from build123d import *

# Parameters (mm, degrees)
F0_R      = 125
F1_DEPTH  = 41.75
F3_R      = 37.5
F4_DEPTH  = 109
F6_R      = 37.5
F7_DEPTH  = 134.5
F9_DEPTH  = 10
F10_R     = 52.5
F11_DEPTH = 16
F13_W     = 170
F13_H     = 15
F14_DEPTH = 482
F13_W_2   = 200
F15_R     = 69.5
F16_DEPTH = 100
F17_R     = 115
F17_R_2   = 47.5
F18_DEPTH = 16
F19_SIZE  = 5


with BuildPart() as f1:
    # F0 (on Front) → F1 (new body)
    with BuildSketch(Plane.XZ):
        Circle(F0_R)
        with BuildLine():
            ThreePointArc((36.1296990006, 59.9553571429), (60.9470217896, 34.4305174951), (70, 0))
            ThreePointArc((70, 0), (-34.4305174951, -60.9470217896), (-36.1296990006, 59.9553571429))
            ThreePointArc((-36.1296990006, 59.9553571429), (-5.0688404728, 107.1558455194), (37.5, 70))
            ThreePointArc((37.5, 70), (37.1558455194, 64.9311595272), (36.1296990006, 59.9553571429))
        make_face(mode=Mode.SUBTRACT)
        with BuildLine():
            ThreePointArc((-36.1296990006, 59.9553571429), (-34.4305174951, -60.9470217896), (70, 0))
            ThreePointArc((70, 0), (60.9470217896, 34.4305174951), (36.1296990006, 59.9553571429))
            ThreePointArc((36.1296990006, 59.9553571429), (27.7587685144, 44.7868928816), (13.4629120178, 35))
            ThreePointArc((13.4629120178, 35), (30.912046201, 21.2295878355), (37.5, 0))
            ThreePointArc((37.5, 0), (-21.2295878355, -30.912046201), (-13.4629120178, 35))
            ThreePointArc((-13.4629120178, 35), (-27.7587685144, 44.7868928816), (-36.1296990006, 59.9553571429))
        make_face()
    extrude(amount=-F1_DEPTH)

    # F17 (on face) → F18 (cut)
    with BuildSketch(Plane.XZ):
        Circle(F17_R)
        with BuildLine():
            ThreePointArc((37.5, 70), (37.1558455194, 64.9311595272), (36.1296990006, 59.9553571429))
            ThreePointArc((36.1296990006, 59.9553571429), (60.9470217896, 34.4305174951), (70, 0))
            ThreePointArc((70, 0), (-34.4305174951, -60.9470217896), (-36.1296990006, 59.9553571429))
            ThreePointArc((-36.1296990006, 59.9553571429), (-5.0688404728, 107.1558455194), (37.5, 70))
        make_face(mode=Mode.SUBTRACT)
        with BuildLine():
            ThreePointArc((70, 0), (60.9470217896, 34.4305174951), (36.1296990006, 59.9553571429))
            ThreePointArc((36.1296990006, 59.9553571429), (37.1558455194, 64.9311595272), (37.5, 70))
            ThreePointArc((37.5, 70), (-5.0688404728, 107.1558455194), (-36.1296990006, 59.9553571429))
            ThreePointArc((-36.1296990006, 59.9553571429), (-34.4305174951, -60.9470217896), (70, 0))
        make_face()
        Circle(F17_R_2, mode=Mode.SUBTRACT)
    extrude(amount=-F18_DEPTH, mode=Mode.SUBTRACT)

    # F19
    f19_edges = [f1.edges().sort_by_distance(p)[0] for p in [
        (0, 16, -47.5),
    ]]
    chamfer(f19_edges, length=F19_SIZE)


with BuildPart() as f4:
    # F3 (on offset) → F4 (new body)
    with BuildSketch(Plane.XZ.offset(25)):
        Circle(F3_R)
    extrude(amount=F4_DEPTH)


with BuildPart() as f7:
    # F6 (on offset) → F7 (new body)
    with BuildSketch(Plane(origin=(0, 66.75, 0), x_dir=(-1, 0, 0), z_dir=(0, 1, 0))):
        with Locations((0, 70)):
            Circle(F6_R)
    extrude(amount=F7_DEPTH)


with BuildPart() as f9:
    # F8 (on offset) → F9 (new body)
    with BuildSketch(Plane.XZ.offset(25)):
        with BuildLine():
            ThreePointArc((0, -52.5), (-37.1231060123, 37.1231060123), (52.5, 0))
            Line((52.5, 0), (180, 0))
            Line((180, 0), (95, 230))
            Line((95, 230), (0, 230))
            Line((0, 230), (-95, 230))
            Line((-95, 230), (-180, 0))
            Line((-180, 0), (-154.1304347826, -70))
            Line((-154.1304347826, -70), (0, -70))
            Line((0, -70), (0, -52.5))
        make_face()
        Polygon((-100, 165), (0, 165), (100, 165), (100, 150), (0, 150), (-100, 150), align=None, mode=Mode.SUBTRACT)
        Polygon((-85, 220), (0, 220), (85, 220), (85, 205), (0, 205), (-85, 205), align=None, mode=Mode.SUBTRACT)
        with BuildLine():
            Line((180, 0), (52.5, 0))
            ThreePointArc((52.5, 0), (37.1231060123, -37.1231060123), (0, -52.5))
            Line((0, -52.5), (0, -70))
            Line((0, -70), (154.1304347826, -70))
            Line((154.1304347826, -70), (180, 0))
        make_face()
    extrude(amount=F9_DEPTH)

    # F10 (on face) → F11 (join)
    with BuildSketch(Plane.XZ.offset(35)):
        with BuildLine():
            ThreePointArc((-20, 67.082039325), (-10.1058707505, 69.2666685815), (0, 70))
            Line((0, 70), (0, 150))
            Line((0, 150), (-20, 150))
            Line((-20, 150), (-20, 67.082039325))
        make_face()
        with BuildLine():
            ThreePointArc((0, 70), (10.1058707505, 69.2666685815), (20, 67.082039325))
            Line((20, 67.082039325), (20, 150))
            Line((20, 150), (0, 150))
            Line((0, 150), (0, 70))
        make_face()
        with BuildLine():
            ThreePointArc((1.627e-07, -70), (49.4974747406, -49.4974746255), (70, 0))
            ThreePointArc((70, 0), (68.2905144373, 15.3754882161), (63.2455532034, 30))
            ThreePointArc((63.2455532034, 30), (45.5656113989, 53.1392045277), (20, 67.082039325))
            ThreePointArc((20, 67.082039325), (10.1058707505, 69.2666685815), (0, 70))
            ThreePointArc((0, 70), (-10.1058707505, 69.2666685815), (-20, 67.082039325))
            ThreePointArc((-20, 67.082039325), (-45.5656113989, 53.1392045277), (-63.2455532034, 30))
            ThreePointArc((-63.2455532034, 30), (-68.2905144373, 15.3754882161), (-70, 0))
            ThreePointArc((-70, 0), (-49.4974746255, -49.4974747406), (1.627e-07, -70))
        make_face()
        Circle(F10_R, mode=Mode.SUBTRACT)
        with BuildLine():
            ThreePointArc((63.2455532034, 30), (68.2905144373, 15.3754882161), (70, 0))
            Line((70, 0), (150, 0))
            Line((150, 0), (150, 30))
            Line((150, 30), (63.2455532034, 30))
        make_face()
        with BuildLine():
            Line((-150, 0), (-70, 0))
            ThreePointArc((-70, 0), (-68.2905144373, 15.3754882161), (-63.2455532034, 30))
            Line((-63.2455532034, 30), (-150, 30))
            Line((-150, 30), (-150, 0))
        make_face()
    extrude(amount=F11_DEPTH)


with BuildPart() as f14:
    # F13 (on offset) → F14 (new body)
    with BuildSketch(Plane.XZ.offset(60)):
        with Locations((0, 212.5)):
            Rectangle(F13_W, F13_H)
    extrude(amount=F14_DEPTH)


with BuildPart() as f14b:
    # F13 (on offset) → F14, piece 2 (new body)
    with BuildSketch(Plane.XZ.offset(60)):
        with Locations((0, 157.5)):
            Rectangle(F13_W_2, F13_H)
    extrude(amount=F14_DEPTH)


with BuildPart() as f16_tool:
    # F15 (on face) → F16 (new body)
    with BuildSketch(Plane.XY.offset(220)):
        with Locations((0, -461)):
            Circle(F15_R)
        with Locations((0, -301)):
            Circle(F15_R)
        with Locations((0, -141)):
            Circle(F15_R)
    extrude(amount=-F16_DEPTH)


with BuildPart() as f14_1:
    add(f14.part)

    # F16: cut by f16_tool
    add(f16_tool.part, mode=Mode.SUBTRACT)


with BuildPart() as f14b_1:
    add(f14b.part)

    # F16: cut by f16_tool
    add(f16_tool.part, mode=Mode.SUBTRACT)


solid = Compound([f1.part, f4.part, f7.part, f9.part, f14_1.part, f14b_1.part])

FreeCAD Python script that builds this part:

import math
import FreeCAD as App
import Part
import Sketcher


def edges_at(feature, points):
    """Names of the edges that pass closest to the given points."""
    edges = feature.Shape.Edges
    near = lambda p: min(range(len(edges)), key=lambda i: edges[i].distToShape(Part.Vertex(*p))[0])
    return sorted({f"Edge{near(p) + 1}" for p in points})

doc = App.newDocument("Part")
body = doc.addObject("PartDesign::Body", "Body")

sketch1 = body.newObject("Sketcher::SketchObject", "Sketch")
sketch1.AttachmentSupport = (doc.getObject("XZ_Plane"), [""])
sketch1.MapMode = "FlatFace"
sketch1.addGeometry([
    Part.Circle(App.Vector(0, 0, 0), App.Vector(0, 0, 1), 125),
    Part.ArcOfCircle(Part.Circle(App.Vector(0, 0, 0), App.Vector(0, 0, 1), 37.5), math.radians(0), math.radians(68.96053)),
    Part.ArcOfCircle(Part.Circle(App.Vector(0, 0, 0), App.Vector(0, 0, 1), 37.5), math.radians(111.03947), math.radians(360)),
    Part.ArcOfCircle(Part.Circle(App.Vector(0, 70, 0), App.Vector(0, 0, 1), 37.5), math.radians(-68.96053), math.radians(248.96053)),
], False)
sketch1.addConstraint([
    Sketcher.Constraint("Tangent", 1, 1, 2, 2),
    Sketcher.Constraint("Coincident", 2, 1, 3, 2),
    Sketcher.Constraint("Coincident", 3, 1, 1, 2),
    Sketcher.Constraint("Coincident", 0, 3, -1, 1),
    Sketcher.Constraint("Coincident", 1, 3, -1, 1),
    Sketcher.Constraint("Equal", 1, 2),
    Sketcher.Constraint("Equal", 2, 3),
    Sketcher.Constraint("PointOnObject", 3, 3, -2),
    Sketcher.Constraint("PointOnObject", 1, 1, -1),
    Sketcher.Constraint("Diameter", 0, 250.0),
    Sketcher.Constraint("Radius", 1, 37.5),
    Sketcher.Constraint("DistanceY", -1, 1, 3, 3, 70.0),
])
pad1 = body.newObject("PartDesign::Pad", "Pad")
pad1.Profile = sketch1
pad1.Length = 41.75
pad1.Reversed = True

sketch2 = body.newObject("Sketcher::SketchObject", "Sketch001")
sketch2.AttachmentSupport = (doc.getObject("XZ_Plane"), [""])
sketch2.MapMode = "FlatFace"
sketch2.addGeometry([
    Part.Circle(App.Vector(0, 0, 0), App.Vector(0, 0, 1), 115),
    Part.Circle(App.Vector(0, 0, 0), App.Vector(0, 0, 1), 47.5),
], False)
sketch2.addConstraint([
    Sketcher.Constraint("Coincident", 0, 3, -1, 1),
    Sketcher.Constraint("Coincident", 1, 3, -1, 1),
    Sketcher.Constraint("Diameter", 0, 230.0),
    Sketcher.Constraint("Diameter", 1, 95.0),
])
pocket1 = body.newObject("PartDesign::Pocket", "Pocket")
pocket1.Profile = sketch2
pocket1.Length = 16
doc.recompute()

chamfer = body.newObject("PartDesign::Chamfer", "Chamfer")
chamfer.Base = (pocket1, edges_at(pocket1, [(0, 16, -47.5)]))
chamfer.Size = 5
body2 = doc.addObject("PartDesign::Body", "Body001")

sketch3 = body2.newObject("Sketcher::SketchObject", "Sketch002")
sketch3.AttachmentSupport = (doc.getObject("XZ_Plane001"), [""])
sketch3.MapMode = "FlatFace"
sketch3.AttachmentOffset = App.Placement(App.Vector(0, 0, 25), App.Rotation())
sketch3.addGeometry(Part.Circle(App.Vector(0, 0, 0), App.Vector(0, 0, 1), 37.5), False)
sketch3.addConstraint([
    Sketcher.Constraint("Coincident", 0, 3, -1, 1),
    Sketcher.Constraint("Diameter", 0, 75.0),
])
pad2 = body2.newObject("PartDesign::Pad", "Pad001")
pad2.Profile = sketch3
pad2.Length = 109
body3 = doc.addObject("PartDesign::Body", "Body002")

sketch4 = body3.newObject("Sketcher::SketchObject", "Sketch003")
sketch4.AttachmentSupport = (doc.getObject("XZ_Plane002"), [""])
sketch4.MapMode = "FlatFace"
sketch4.AttachmentOffset = App.Placement(App.Vector(0, 0, -66.75), App.Rotation())
sketch4.addGeometry(Part.Circle(App.Vector(0, 70, 0), App.Vector(0, 0, 1), 37.5), False)
sketch4.addConstraint([
    Sketcher.Constraint("PointOnObject", 0, 3, -2),
    Sketcher.Constraint("Diameter", 0, 75.0),
    Sketcher.Constraint("DistanceY", -1, 1, 0, 3, 70.0),
])
pad3 = body3.newObject("PartDesign::Pad", "Pad002")
pad3.Profile = sketch4
pad3.Length = 134.5
pad3.Reversed = True
body4 = doc.addObject("PartDesign::Body", "Body003")

sketch5 = body4.newObject("Sketcher::SketchObject", "Sketch004")
sketch5.AttachmentSupport = (doc.getObject("XZ_Plane003"), [""])
sketch5.MapMode = "FlatFace"
sketch5.AttachmentOffset = App.Placement(App.Vector(0, 0, 25), App.Rotation())
sketch5.addGeometry([
    Part.LineSegment(App.Vector(180, 0, 0), App.Vector(95, 230, 0)),
    Part.LineSegment(App.Vector(95, 230, 0), App.Vector(-95, 230, 0)),
    Part.LineSegment(App.Vector(-95, 230, 0), App.Vector(-180, 0, 0)),
    Part.LineSegment(App.Vector(-180, 0, 0), App.Vector(-154.130435, -70, 0)),
    Part.LineSegment(App.Vector(-154.130435, -70, 0), App.Vector(154.130435, -70, 0)),
    Part.LineSegment(App.Vector(154.130435, -70, 0), App.Vector(180, 0, 0)),
    Part.Circle(App.Vector(0, 0, 0), App.Vector(0, 0, 1), 52.5),
    Part.LineSegment(App.Vector(-100, 150, 0), App.Vector(-100, 165, 0)),
    Part.LineSegment(App.Vector(-100, 165, 0), App.Vector(100, 165, 0)),
    Part.LineSegment(App.Vector(100, 165, 0), App.Vector(100, 150, 0)),
    Part.LineSegment(App.Vector(100, 150, 0), App.Vector(-100, 150, 0)),
    Part.LineSegment(App.Vector(-85, 205, 0), App.Vector(-85, 220, 0)),
    Part.LineSegment(App.Vector(-85, 220, 0), App.Vector(85, 220, 0)),
    Part.LineSegment(App.Vector(85, 220, 0), App.Vector(85, 205, 0)),
    Part.LineSegment(App.Vector(85, 205, 0), App.Vector(-85, 205, 0)),
], False)
sketch5.addConstraint([
    Sketcher.Constraint("Coincident", 0, 2, 1, 1),
    Sketcher.Constraint("Coincident", 1, 2, 2, 1),
    Sketcher.Constraint("Coincident", 2, 2, 3, 1),
    Sketcher.Constraint("Coincident", 3, 2, 4, 1),
    Sketcher.Constraint("Coincident", 4, 2, 5, 1),
    Sketcher.Constraint("Coincident", 5, 2, 0, 1),
    Sketcher.Constraint("Coincident", 7, 2, 8, 1),
    Sketcher.Constraint("Coincident", 8, 2, 9, 1),
    Sketcher.Constraint("Coincident", 9, 2, 10, 1),
    Sketcher.Constraint("Coincident", 10, 2, 7, 1),
    Sketcher.Constraint("Coincident", 11, 2, 12, 1),
    Sketcher.Constraint("Coincident", 12, 2, 13, 1),
    Sketcher.Constraint("Coincident", 13, 2, 14, 1),
    Sketcher.Constraint("Coincident", 14, 2, 11, 1),
    Sketcher.Constraint("Horizontal", 1),
    Sketcher.Constraint("Horizontal", 4),
    Sketcher.Constraint("Vertical", 7),
    Sketcher.Constraint("Horizontal", 8),
    Sketcher.Constraint("Vertical", 9),
    Sketcher.Constraint("Horizontal", 10),
    Sketcher.Constraint("Vertical", 11),
    Sketcher.Constraint("Horizontal", 12),
    Sketcher.Constraint("Vertical", 13),
    Sketcher.Constraint("Horizontal", 14),
    Sketcher.Constraint("Coincident", 6, 3, -1, 1),
    Sketcher.Constraint("Symmetric", 2, 2, 5, 2, -1, 1),
    Sketcher.Constraint("PointOnObject", 2, 2, -1),
    Sketcher.Constraint("Parallel", 0, 3),
    Sketcher.Constraint("Parallel", 2, 5),
    Sketcher.Constraint("Equal", 9, 11),
    Sketcher.Constraint("Equal", 0, 2),
    Sketcher.Constraint("Diameter", 6, 105.0),
    Sketcher.Constraint("DistanceX", 1, 2, 1, 1, 190.0),
    Sketcher.Constraint("DistanceX", 8, 1, 8, 2, 200.0),
    Sketcher.Constraint("DistanceX", 12, 1, 12, 2, 170.0),
    Sketcher.Constraint("DistanceY", 7, 1, 7, 2, 15.0),
    Sketcher.Constraint("DistanceY", -1, 1, 0, 2, 230.0),
    Sketcher.Constraint("DistanceX", 2, 2, -1, 1, 180.0),
    Sketcher.Constraint("DistanceY", 3, 2, -1, 1, 70.0),
    Sketcher.Constraint("DistanceX", 7, 2, -1, 1, 100.0),
    Sketcher.Constraint("DistanceY", -1, 1, 7, 2, 165.0),
    Sketcher.Constraint("DistanceX", 11, 2, -1, 1, 85.0),
    Sketcher.Constraint("DistanceY", -1, 1, 11, 2, 220.0),
])
pad4 = body4.newObject("PartDesign::Pad", "Pad003")
pad4.Profile = sketch5
pad4.Length = 10

sketch6 = body4.newObject("Sketcher::SketchObject", "Sketch005")
sketch6.AttachmentSupport = (doc.getObject("XZ_Plane003"), [""])
sketch6.MapMode = "FlatFace"
sketch6.AttachmentOffset = App.Placement(App.Vector(0, 0, 35), App.Rotation())
sketch6.addGeometry([
    Part.LineSegment(App.Vector(20, 67.082039, 0), App.Vector(20, 150, 0)),
    Part.LineSegment(App.Vector(20, 150, 0), App.Vector(-20, 150, 0)),
    Part.LineSegment(App.Vector(-20, 150, 0), App.Vector(-20, 67.082039, 0)),
    Part.ArcOfCircle(Part.Circle(App.Vector(0, 0, 0), App.Vector(0, 0, 1), 70), math.radians(106.60155), math.radians(154.623066)),
    Part.LineSegment(App.Vector(-63.245553, 30, 0), App.Vector(-150, 30, 0)),
    Part.LineSegment(App.Vector(-150, 30, 0), App.Vector(-150, 0, 0)),
    Part.LineSegment(App.Vector(-150, 0, 0), App.Vector(-70, 0, 0)),
    Part.ArcOfCircle(Part.Circle(App.Vector(0, 0, 0), App.Vector(0, 0, 1), 70), math.radians(180), math.radians(360)),
    Part.LineSegment(App.Vector(70, 0, 0), App.Vector(150, 0, 0)),
    Part.LineSegment(App.Vector(150, 0, 0), App.Vector(150, 30, 0)),
    Part.LineSegment(App.Vector(150, 30, 0), App.Vector(63.245553, 30, 0)),
    Part.ArcOfCircle(Part.Circle(App.Vector(0, 0, 0), App.Vector(0, 0, 1), 70), math.radians(25.376934), math.radians(73.39845)),
    Part.Circle(App.Vector(0, 0, 0), App.Vector(0, 0, 1), 52.5),
], False)
sketch6.addConstraint([
    Sketcher.Constraint("Coincident", 0, 2, 1, 1),
    Sketcher.Constraint("Coincident", 1, 2, 2, 1),
    Sketcher.Constraint("Coincident", 2, 2, 3, 1),
    Sketcher.Constraint("Coincident", 3, 2, 4, 1),
    Sketcher.Constraint("Coincident", 4, 2, 5, 1),
    Sketcher.Constraint("Coincident", 5, 2, 6, 1),
    Sketcher.Constraint("Coincident", 6, 2, 7, 1),
    Sketcher.Constraint("Coincident", 7, 2, 8, 1),
    Sketcher.Constraint("Coincident", 8, 2, 9, 1),
    Sketcher.Constraint("Coincident", 9, 2, 10, 1),
    Sketcher.Constraint("Coincident", 10, 2, 11, 1),
    Sketcher.Constraint("Coincident", 11, 2, 0, 1),
    Sketcher.Constraint("Vertical", 0),
    Sketcher.Constraint("Horizontal", 1),
    Sketcher.Constraint("Vertical", 2),
    Sketcher.Constraint("Horizontal", 4),
    Sketcher.Constraint("Vertical", 5),
    Sketcher.Constraint("Horizontal", 6),
    Sketcher.Constraint("Horizontal", 8),
    Sketcher.Constraint("Vertical", 9),
    Sketcher.Constraint("Horizontal", 10),
    Sketcher.Constraint("Coincident", 3, 3, -1, 1),
    Sketcher.Constraint("Coincident", 7, 3, -1, 1),
    Sketcher.Constraint("Coincident", 11, 3, -1, 1),
    Sketcher.Constraint("Coincident", 12, 3, -1, 1),
    Sketcher.Constraint("Equal", 3, 7),
    Sketcher.Constraint("Equal", 7, 11),
    Sketcher.Constraint("Symmetric", 5, 2, 8, 2, -1, 1),
    Sketcher.Constraint("PointOnObject", 5, 2, -1),
    Sketcher.Constraint("Horizontal", 4, 2, 9, 2),
    Sketcher.Constraint("Horizontal", 2, 2, 11, 2),
    Sketcher.Constraint("Diameter", 12, 105.0),
    Sketcher.Constraint("Radius", 3, 70.0),
    Sketcher.Constraint("DistanceX", 1, 2, 1, 1, 40.0),
    Sketcher.Constraint("DistanceX", 6, 1, 6, 2, 80.0),
    Sketcher.Constraint("DistanceY", 5, 2, 5, 1, 30.0),
    Sketcher.Constraint("DistanceY", -1, 1, 0, 2, 150.0),
])
pad5 = body4.newObject("PartDesign::Pad", "Pad004")
pad5.Profile = sketch6
pad5.Length = 16
body5 = doc.addObject("PartDesign::Body", "Body004")

sketch7 = body5.newObject("Sketcher::SketchObject", "Sketch006")
sketch7.AttachmentSupport = (doc.getObject("XZ_Plane004"), [""])
sketch7.MapMode = "FlatFace"
sketch7.AttachmentOffset = App.Placement(App.Vector(0, 0, 60), App.Rotation())
sketch7.addGeometry([
    Part.LineSegment(App.Vector(-85, 220, 0), App.Vector(-85, 205, 0)),
    Part.LineSegment(App.Vector(-85, 205, 0), App.Vector(85, 205, 0)),
    Part.LineSegment(App.Vector(85, 205, 0), App.Vector(85, 220, 0)),
    Part.LineSegment(App.Vector(85, 220, 0), App.Vector(-85, 220, 0)),
], False)
sketch7.addConstraint([
    Sketcher.Constraint("Coincident", 0, 2, 1, 1),
    Sketcher.Constraint("Coincident", 1, 2, 2, 1),
    Sketcher.Constraint("Coincident", 2, 2, 3, 1),
    Sketcher.Constraint("Coincident", 3, 2, 0, 1),
    Sketcher.Constraint("Vertical", 0),
    Sketcher.Constraint("Horizontal", 1),
    Sketcher.Constraint("Vertical", 2),
    Sketcher.Constraint("Horizontal", 3),
    Sketcher.Constraint("DistanceX", 1, 1, 1, 2, 170.0),
    Sketcher.Constraint("DistanceY", 0, 2, 0, 1, 15.0),
    Sketcher.Constraint("DistanceX", 0, 2, -1, 1, 85.0),
    Sketcher.Constraint("DistanceY", -1, 1, 0, 2, 205.0),
])
pad6 = body5.newObject("PartDesign::Pad", "Pad005")
pad6.Profile = sketch7
pad6.Length = 482
body6 = doc.addObject("PartDesign::Body", "Body005")

sketch8 = body6.newObject("Sketcher::SketchObject", "Sketch007")
sketch8.AttachmentSupport = (doc.getObject("XZ_Plane005"), [""])
sketch8.MapMode = "FlatFace"
sketch8.AttachmentOffset = App.Placement(App.Vector(0, 0, 60), App.Rotation())
sketch8.addGeometry([
    Part.LineSegment(App.Vector(-100, 165, 0), App.Vector(-100, 150, 0)),
    Part.LineSegment(App.Vector(-100, 150, 0), App.Vector(100, 150, 0)),
    Part.LineSegment(App.Vector(100, 150, 0), App.Vector(100, 165, 0)),
    Part.LineSegment(App.Vector(100, 165, 0), App.Vector(-100, 165, 0)),
], False)
sketch8.addConstraint([
    Sketcher.Constraint("Coincident", 0, 2, 1, 1),
    Sketcher.Constraint("Coincident", 1, 2, 2, 1),
    Sketcher.Constraint("Coincident", 2, 2, 3, 1),
    Sketcher.Constraint("Coincident", 3, 2, 0, 1),
    Sketcher.Constraint("Vertical", 0),
    Sketcher.Constraint("Horizontal", 1),
    Sketcher.Constraint("Vertical", 2),
    Sketcher.Constraint("Horizontal", 3),
    Sketcher.Constraint("DistanceX", 1, 1, 1, 2, 200.0),
    Sketcher.Constraint("DistanceY", 0, 2, 0, 1, 15.0),
    Sketcher.Constraint("DistanceX", 0, 2, -1, 1, 100.0),
    Sketcher.Constraint("DistanceY", -1, 1, 0, 2, 150.0),
])
pad7 = body6.newObject("PartDesign::Pad", "Pad006")
pad7.Profile = sketch8
pad7.Length = 482
body7 = doc.addObject("PartDesign::Body", "Body006")
body7.AllowCompound = True

sketch9 = body7.newObject("Sketcher::SketchObject", "Sketch008")
sketch9.AttachmentSupport = (doc.getObject("XY_Plane006"), [""])
sketch9.MapMode = "FlatFace"
sketch9.AttachmentOffset = App.Placement(App.Vector(0, 0, 220), App.Rotation())
sketch9.addGeometry([
    Part.Circle(App.Vector(0, -461, 0), App.Vector(0, 0, 1), 69.5),
    Part.Circle(App.Vector(0, -301, 0), App.Vector(0, 0, 1), 69.5),
    Part.Circle(App.Vector(0, -141, 0), App.Vector(0, 0, 1), 69.5),
], False)
sketch9.addConstraint([
    Sketcher.Constraint("Equal", 0, 1),
    Sketcher.Constraint("Equal", 1, 2),
    Sketcher.Constraint("PointOnObject", 0, 3, -2),
    Sketcher.Constraint("PointOnObject", 1, 3, -2),
    Sketcher.Constraint("PointOnObject", 2, 3, -2),
    Sketcher.Constraint("Diameter", 0, 139.0),
    Sketcher.Constraint("DistanceY", 0, 3, -1, 1, 461.0),
    Sketcher.Constraint("DistanceY", 1, 3, -1, 1, 301.0),
    Sketcher.Constraint("DistanceY", 2, 3, -1, 1, 141.0),
])
pad8 = body7.newObject("PartDesign::Pad", "Pad007")
pad8.Profile = sketch9
pad8.Length = 100
pad8.Reversed = True
doc.recompute()

body8 = doc.addObject("PartDesign::Body", "Body007")
body8.BaseFeature = body7
boolean = body5.newObject("PartDesign::Boolean", "Boolean")
boolean.Type = "Cut"
boolean.addObjects([body8])
doc.recompute()

boolean2 = body6.newObject("PartDesign::Boolean", "Boolean001")
boolean2.Type = "Cut"
boolean2.addObjects([body7])

doc.recompute()
